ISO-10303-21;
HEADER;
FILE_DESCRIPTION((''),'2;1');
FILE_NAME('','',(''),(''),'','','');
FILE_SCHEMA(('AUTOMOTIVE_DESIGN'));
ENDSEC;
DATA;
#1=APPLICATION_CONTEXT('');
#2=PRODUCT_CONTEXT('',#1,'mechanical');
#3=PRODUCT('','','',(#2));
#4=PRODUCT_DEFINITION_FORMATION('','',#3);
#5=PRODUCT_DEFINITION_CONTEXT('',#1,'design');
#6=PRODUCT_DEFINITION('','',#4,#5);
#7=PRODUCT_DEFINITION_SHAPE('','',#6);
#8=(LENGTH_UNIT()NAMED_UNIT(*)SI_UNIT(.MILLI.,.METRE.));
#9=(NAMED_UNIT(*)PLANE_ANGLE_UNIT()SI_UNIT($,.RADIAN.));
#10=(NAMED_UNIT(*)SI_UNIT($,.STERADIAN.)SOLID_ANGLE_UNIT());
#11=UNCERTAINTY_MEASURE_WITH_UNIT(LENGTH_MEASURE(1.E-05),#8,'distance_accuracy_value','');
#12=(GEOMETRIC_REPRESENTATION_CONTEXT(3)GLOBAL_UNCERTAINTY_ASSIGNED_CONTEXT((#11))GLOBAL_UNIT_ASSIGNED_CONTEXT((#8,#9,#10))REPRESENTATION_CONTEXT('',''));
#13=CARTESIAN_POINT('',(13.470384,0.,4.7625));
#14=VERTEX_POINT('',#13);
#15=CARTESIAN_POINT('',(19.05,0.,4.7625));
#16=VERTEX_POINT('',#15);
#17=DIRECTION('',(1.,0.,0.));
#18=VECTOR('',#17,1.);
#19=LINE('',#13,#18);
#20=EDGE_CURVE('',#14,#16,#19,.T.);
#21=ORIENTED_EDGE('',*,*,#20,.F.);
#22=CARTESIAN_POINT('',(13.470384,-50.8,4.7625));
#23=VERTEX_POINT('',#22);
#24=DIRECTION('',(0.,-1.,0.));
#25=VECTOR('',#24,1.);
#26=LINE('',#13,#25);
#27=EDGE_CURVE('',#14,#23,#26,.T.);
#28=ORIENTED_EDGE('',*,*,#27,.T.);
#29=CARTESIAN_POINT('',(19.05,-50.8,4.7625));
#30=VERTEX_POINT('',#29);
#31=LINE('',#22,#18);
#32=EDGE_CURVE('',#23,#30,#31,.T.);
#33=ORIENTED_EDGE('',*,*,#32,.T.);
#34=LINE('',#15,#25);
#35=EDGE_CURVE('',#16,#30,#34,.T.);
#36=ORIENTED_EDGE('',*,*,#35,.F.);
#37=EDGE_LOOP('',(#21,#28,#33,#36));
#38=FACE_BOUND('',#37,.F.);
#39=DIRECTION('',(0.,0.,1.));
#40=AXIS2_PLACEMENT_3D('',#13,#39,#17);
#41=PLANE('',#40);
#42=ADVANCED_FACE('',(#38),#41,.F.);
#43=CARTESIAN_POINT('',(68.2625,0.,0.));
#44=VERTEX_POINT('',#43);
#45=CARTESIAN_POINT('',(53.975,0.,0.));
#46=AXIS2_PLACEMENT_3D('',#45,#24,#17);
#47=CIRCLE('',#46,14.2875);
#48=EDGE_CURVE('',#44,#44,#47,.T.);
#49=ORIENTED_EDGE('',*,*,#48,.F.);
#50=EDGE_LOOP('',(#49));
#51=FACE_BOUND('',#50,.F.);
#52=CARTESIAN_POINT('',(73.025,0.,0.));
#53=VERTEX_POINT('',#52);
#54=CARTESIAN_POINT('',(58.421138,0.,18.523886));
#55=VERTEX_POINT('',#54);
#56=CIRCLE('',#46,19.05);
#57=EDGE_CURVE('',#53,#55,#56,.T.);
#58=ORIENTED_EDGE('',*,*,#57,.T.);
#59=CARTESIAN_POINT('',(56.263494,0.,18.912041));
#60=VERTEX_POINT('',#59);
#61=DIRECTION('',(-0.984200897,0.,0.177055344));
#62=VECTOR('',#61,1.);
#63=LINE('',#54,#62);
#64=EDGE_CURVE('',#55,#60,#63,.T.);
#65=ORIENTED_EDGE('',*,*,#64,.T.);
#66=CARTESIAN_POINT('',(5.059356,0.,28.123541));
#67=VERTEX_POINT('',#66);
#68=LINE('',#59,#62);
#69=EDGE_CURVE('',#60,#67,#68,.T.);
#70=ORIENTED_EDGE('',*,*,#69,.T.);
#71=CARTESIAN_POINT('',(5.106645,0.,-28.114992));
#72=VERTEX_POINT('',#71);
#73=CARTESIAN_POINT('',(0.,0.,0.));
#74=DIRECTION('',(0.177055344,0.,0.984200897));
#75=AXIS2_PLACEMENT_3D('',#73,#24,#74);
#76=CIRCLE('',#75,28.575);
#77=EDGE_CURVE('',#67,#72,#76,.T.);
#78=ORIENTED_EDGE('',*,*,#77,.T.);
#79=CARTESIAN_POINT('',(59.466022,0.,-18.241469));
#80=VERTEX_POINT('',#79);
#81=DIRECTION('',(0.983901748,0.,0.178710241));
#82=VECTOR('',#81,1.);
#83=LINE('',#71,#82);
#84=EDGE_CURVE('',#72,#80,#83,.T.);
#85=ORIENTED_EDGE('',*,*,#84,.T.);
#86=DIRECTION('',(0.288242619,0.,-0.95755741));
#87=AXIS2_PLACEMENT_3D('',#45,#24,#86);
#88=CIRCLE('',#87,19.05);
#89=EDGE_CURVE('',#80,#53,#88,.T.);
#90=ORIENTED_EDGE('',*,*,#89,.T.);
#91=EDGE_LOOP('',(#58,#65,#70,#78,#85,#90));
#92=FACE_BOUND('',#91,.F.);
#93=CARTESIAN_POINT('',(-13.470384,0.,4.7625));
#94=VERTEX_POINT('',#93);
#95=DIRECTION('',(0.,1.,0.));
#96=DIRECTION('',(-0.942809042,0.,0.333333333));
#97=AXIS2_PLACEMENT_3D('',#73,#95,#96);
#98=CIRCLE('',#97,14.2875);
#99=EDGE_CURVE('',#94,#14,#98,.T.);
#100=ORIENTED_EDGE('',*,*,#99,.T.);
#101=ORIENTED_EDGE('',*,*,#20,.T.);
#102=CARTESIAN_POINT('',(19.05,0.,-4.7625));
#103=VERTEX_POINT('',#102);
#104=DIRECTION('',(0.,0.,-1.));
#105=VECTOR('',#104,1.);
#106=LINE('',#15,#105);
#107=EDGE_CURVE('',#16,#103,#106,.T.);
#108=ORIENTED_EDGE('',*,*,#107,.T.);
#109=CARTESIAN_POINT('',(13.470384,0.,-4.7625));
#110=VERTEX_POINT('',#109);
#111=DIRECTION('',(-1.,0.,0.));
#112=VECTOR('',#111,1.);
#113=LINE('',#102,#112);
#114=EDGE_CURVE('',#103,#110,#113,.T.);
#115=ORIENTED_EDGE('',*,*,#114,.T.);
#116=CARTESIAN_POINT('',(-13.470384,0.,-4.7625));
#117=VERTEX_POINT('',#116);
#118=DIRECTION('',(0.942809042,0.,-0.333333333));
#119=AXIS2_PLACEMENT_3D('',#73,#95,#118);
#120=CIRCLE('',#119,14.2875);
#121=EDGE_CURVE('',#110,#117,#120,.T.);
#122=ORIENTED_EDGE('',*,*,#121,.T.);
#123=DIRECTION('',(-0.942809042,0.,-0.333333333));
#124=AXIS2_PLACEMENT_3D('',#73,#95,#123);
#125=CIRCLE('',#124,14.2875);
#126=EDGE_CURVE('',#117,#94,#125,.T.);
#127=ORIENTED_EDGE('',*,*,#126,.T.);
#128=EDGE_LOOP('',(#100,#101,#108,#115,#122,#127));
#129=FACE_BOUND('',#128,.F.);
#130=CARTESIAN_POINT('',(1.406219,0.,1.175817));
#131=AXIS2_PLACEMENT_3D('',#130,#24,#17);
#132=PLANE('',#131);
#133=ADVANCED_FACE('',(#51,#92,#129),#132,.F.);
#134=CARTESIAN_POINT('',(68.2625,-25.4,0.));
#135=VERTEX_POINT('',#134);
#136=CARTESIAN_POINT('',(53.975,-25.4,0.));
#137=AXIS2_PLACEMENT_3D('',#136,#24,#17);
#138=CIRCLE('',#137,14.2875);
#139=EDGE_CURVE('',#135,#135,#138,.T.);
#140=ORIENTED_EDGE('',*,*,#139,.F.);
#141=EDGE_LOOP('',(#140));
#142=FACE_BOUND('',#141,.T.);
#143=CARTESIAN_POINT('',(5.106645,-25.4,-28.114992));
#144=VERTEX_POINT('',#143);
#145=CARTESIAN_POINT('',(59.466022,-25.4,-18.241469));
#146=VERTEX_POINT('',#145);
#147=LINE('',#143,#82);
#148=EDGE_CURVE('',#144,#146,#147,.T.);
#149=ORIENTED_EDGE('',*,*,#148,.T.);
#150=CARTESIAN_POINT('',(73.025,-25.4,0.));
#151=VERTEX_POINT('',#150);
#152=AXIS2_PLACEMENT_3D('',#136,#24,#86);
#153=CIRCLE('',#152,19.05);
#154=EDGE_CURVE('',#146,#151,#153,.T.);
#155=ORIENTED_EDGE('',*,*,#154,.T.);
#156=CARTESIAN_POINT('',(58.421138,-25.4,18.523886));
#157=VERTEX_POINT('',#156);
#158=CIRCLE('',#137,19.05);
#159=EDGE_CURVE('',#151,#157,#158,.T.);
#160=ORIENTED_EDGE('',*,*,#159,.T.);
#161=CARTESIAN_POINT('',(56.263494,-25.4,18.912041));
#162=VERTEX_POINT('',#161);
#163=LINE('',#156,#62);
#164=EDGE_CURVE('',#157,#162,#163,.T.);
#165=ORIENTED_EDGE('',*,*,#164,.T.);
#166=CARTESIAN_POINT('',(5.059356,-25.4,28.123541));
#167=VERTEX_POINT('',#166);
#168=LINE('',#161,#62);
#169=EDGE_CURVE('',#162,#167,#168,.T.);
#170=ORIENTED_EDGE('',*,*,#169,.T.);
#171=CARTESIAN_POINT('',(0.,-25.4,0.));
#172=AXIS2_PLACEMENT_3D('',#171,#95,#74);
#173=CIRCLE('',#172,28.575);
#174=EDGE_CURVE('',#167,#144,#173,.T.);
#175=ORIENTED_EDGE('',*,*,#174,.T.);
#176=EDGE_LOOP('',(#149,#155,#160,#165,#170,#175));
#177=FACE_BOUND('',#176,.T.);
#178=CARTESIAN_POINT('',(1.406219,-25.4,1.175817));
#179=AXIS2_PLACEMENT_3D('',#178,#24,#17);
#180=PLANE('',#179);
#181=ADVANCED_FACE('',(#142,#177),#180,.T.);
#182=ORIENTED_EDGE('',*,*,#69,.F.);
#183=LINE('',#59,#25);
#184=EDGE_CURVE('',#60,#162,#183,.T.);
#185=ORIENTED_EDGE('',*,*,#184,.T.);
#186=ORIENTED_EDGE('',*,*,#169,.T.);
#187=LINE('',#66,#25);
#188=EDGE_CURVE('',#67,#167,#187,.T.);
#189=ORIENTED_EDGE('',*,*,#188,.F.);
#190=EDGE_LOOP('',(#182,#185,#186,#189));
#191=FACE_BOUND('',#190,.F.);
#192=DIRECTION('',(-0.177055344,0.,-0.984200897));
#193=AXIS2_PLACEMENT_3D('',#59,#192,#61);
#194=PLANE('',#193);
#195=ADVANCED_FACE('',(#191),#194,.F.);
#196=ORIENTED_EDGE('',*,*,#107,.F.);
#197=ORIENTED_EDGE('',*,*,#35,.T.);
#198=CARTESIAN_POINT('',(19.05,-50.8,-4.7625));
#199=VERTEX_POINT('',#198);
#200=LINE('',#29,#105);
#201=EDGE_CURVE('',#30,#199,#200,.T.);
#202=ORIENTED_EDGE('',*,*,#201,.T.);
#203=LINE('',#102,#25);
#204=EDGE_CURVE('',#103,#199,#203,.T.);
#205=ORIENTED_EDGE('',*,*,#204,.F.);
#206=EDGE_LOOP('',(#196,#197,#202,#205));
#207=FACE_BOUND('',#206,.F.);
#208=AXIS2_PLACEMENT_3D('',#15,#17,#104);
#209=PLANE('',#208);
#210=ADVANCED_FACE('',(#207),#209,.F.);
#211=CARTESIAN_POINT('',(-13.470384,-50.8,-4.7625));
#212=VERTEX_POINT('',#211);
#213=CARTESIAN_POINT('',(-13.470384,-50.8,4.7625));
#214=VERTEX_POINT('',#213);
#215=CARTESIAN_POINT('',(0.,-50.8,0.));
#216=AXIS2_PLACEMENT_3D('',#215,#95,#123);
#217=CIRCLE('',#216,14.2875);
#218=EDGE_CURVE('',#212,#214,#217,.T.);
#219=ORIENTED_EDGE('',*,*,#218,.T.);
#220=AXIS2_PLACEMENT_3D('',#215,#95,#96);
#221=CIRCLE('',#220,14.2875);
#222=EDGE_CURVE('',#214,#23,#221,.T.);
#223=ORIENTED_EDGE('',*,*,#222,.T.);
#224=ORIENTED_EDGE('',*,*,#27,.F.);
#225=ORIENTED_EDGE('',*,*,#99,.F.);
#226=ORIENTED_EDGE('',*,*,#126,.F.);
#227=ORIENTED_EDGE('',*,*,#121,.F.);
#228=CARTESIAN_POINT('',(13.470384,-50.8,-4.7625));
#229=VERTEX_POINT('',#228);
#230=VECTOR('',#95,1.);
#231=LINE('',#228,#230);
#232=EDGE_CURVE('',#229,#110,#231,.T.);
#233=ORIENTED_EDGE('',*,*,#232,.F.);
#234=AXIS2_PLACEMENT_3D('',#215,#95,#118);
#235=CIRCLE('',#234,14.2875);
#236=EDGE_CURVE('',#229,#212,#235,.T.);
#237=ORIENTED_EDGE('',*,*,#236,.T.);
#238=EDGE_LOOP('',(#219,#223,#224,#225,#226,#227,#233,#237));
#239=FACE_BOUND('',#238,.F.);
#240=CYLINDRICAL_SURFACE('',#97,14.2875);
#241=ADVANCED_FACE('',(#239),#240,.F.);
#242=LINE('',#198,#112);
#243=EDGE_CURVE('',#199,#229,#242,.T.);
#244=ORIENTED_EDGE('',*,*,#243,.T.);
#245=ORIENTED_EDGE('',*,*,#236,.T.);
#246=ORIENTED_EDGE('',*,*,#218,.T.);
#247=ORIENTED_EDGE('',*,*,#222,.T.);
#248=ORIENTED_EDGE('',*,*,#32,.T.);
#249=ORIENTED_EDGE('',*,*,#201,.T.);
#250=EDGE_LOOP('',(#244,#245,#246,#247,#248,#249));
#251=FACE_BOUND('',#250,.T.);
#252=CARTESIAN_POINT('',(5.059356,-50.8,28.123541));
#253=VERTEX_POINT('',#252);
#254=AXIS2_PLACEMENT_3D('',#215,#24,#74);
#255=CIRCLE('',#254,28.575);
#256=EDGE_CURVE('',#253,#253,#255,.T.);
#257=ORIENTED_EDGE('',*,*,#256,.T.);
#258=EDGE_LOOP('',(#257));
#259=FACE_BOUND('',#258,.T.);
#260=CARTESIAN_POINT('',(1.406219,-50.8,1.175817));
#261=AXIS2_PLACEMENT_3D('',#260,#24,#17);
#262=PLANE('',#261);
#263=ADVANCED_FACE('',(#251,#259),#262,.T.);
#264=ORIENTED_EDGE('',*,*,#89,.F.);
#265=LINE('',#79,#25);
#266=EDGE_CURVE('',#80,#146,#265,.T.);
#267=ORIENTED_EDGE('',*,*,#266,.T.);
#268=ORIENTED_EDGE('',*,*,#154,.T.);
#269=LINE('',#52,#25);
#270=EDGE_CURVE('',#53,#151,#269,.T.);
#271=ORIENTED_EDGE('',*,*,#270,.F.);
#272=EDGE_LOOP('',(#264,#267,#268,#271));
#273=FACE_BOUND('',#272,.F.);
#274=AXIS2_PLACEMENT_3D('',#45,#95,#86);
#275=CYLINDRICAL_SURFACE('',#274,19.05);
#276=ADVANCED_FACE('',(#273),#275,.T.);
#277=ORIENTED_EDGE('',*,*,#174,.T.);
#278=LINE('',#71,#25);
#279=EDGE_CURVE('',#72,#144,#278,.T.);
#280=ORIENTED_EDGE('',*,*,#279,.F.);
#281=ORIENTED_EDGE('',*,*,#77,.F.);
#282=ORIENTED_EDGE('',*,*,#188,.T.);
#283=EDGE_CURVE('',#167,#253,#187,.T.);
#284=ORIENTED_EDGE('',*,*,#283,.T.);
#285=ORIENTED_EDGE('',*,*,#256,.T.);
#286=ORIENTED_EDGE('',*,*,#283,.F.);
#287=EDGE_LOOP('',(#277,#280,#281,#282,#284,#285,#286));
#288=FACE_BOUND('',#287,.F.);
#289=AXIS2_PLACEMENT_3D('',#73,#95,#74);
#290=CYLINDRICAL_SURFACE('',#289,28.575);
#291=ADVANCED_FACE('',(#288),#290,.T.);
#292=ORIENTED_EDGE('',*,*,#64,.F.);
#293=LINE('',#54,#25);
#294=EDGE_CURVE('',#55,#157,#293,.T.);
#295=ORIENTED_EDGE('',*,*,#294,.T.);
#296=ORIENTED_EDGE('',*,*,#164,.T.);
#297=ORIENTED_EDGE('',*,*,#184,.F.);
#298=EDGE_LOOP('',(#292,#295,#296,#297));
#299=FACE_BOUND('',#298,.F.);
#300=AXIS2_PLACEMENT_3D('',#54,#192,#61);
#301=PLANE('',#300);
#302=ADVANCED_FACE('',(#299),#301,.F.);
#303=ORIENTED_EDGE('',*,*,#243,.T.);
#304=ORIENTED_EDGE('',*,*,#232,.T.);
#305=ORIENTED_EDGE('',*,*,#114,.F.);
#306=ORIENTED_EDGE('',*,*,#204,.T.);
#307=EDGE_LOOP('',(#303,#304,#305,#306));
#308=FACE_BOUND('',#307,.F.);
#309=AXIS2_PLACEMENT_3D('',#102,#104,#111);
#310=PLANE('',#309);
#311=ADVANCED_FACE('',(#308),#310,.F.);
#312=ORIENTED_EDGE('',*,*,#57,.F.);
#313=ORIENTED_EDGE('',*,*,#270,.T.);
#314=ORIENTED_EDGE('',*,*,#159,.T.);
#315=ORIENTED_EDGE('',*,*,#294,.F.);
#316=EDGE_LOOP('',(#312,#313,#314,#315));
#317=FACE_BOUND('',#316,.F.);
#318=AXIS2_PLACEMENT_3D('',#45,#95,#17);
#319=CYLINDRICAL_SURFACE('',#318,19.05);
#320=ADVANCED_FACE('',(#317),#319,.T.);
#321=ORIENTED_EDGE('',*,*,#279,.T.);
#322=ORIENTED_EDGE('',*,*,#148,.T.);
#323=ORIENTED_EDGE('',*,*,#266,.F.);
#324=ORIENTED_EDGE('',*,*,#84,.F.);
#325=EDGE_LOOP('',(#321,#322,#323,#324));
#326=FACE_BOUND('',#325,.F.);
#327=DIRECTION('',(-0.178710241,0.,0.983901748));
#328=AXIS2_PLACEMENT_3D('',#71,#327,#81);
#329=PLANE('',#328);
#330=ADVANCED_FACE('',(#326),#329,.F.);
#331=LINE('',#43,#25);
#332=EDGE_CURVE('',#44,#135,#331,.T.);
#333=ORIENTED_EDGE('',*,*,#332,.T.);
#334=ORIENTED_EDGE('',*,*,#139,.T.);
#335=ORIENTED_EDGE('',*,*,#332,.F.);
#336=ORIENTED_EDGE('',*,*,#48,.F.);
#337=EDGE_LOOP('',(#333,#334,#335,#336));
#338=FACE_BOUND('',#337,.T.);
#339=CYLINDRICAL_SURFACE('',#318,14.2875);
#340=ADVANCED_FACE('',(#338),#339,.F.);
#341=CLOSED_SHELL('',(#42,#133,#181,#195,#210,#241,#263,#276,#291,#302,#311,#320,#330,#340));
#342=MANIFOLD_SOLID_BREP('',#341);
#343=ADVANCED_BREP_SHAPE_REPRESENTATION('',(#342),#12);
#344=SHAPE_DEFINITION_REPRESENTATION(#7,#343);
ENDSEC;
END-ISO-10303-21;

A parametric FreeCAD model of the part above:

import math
import FreeCAD as App
import Part
import Sketcher
from FreeCAD import Vector
Q = App.Units.Quantity

doc = App.newDocument("Part")
body = doc.addObject("PartDesign::Body", "Body")

sketch1 = doc.addObject("Sketcher::SketchObject", "Sketch")
body.addObject(sketch1)
sketch1.AttachmentSupport = (doc.XZ_Plane, [""])
sketch1.MapMode = "FlatFace"
sketch1.addGeometry([
    Part.ArcOfCircle(Part.Circle(Vector(0, 0, 0), Vector(0, 0, 1), 28.575), math.radians(79.801711), math.radians(280.294644)),
    Part.LineSegment(Vector(5.106645, -28.114992, 0), Vector(59.466022, -18.241469, 0)),
    Part.ArcOfCircle(Part.Circle(Vector(53.975, 0, 0), Vector(0, 0, 1), 19.05), math.radians(-73.247227), math.radians(0)),
    Part.ArcOfCircle(Part.Circle(Vector(53.975, 0, 0), Vector(0, 0, 1), 19.05), math.radians(0), math.radians(76.503081)),
    Part.LineSegment(Vector(58.421138, 18.523886, 0), Vector(56.263494, 18.912041, 0)),
    Part.LineSegment(Vector(56.263494, 18.912041, 0), Vector(5.059356, 28.123541, 0)),
    Part.Circle(Vector(53.975, 0, 0), Vector(0, 0, 1), 14.2875),
    Part.ArcOfCircle(Part.Circle(Vector(0, 0, 0), Vector(0, 0, 1), 14.2875), math.radians(19.471221), math.radians(160.528779)),
    Part.LineSegment(Vector(13.470384, 4.7625, 0), Vector(19.05, 4.7625, 0)),
    Part.LineSegment(Vector(19.05, 4.7625, 0), Vector(19.05, -4.7625, 0)),
    Part.LineSegment(Vector(19.05, -4.7625, 0), Vector(13.470384, -4.7625, 0)),
    Part.ArcOfCircle(Part.Circle(Vector(0, 0, 0), Vector(0, 0, 1), 14.2875), math.radians(-160.528779), math.radians(-19.471221)),
    Part.ArcOfCircle(Part.Circle(Vector(0, 0, 0), Vector(0, 0, 1), 14.2875), math.radians(160.528779), math.radians(199.471221)),
], False)
sketch1.addConstraint([
    Sketcher.Constraint("Tangent", 0, 2, 1, 1),
    Sketcher.Constraint("Coincident", 1, 2, 2, 1),
    Sketcher.Constraint("Tangent", 2, 2, 3, 1),
    Sketcher.Constraint("Coincident", 3, 2, 4, 1),
    Sketcher.Constraint("Coincident", 4, 2, 5, 1),
    Sketcher.Constraint("Tangent", 5, 2, 0, 1),
    Sketcher.Constraint("Coincident", 7, 1, 8, 1),
    Sketcher.Constraint("Coincident", 8, 2, 9, 1),
    Sketcher.Constraint("Coincident", 9, 2, 10, 1),
    Sketcher.Constraint("Coincident", 10, 2, 11, 2),
    Sketcher.Constraint("Tangent", 11, 1, 12, 2),
    Sketcher.Constraint("Tangent", 12, 1, 7, 2),
    Sketcher.Constraint("Horizontal", 8),
    Sketcher.Constraint("Vertical", 9),
    Sketcher.Constraint("Horizontal", 10),
    Sketcher.Constraint("Coincident", 0, 3, -1, 1),
    Sketcher.Constraint("Coincident", 7, 3, -1, 1),
    Sketcher.Constraint("Coincident", 11, 3, -1, 1),
    Sketcher.Constraint("Coincident", 6, 3, 2, 3),
    Sketcher.Constraint("Equal", 2, 3),
    Sketcher.Constraint("Equal", 6, 7),
    Sketcher.Constraint("PointOnObject", 2, 3, -1),
    Sketcher.Constraint("PointOnObject", 2, 2, -1),
    Sketcher.Constraint("Parallel", 4, 5),
    Sketcher.Constraint("Horizontal", 10, 2, 11, 1),
    Sketcher.Constraint("Horizontal", 8, 2, 12, 1),
    Sketcher.Constraint("Vertical", 7, 1, 10, 2),
    Sketcher.Constraint("Radius", 2, Q("0.75 in")),
    Sketcher.Constraint("Diameter", 6, Q("1.125 in")),
    Sketcher.Constraint("Radius", 0, Q("1.125 in")),
    Sketcher.Constraint("DistanceY", 9, 2, 9, 1, Q("0.375 in")),
    Sketcher.Constraint("DistanceX", -1, 1, 8, 2, Q("0.75 in")),
    Sketcher.Constraint("DistanceX", -1, 1, 2, 3, Q("2.125 in")),
    Sketcher.Constraint("DistanceY", 4, 2, 5, 2, 9.2115),
    Sketcher.Constraint("Distance", 4, 2.19228),
    Sketcher.Constraint("DistanceX", -1, 1, 1, 2, 59.466022),
])
pad1 = doc.addObject("PartDesign::Pad", "Pad")
body.addObject(pad1)
pad1.Profile = sketch1
pad1.Length = Q("1 in")

sketch2 = doc.addObject("Sketcher::SketchObject", "Sketch001")
body.addObject(sketch2)
sketch2.AttachmentSupport = (doc.XZ_Plane, [""])
sketch2.MapMode = "FlatFace"
sketch2.addGeometry([
    Part.Circle(Vector(0, 0, 0), Vector(0, 0, 1), 28.575),
    Part.ArcOfCircle(Part.Circle(Vector(0, 0, 0), Vector(0, 0, 1), 14.2875), math.radians(-160.528779), math.radians(-19.471221)),
    Part.ArcOfCircle(Part.Circle(Vector(0, 0, 0), Vector(0, 0, 1), 14.2875), math.radians(160.528779), math.radians(199.471221)),
    Part.ArcOfCircle(Part.Circle(Vector(0, 0, 0), Vector(0, 0, 1), 14.2875), math.radians(19.471221), math.radians(160.528779)),
    Part.LineSegment(Vector(13.470384, 4.7625, 0), Vector(19.05, 4.7625, 0)),
    Part.LineSegment(Vector(19.05, 4.7625, 0), Vector(19.05, -4.7625, 0)),
    Part.LineSegment(Vector(19.05, -4.7625, 0), Vector(13.470384, -4.7625, 0)),
], False)
sketch2.addConstraint([
    Sketcher.Constraint("Tangent", 1, 1, 2, 2),
    Sketcher.Constraint("Tangent", 2, 1, 3, 2),
    Sketcher.Constraint("Coincident", 3, 1, 4, 1),
    Sketcher.Constraint("Coincident", 4, 2, 5, 1),
    Sketcher.Constraint("Coincident", 5, 2, 6, 1),
    Sketcher.Constraint("Coincident", 6, 2, 1, 2),
    Sketcher.Constraint("Horizontal", 4),
    Sketcher.Constraint("Vertical", 5),
    Sketcher.Constraint("Horizontal", 6),
    Sketcher.Constraint("Coincident", 0, 3, -1, 1),
    Sketcher.Constraint("Coincident", 1, 3, -1, 1),
    Sketcher.Constraint("Coincident", 3, 3, -1, 1),
    Sketcher.Constraint("Horizontal", 2, 1, 3, 1),
    Sketcher.Constraint("Horizontal", 1, 1, 5, 2),
    Sketcher.Constraint("Vertical", 1, 1, 2, 1),
    Sketcher.Constraint("Diameter", 0, Q("2.25 in")),
    Sketcher.Constraint("Radius", 1, Q("0.5625 in")),
    Sketcher.Constraint("DistanceY", 5, 2, 5, 1, Q("0.375 in")),
    Sketcher.Constraint("DistanceX", -1, 1, 4, 2, Q("0.75 in")),
])
pad2 = doc.addObject("PartDesign::Pad", "Pad001")
body.addObject(pad2)
pad2.Profile = sketch2
pad2.Length = Q("2 in")

doc.recompute()
